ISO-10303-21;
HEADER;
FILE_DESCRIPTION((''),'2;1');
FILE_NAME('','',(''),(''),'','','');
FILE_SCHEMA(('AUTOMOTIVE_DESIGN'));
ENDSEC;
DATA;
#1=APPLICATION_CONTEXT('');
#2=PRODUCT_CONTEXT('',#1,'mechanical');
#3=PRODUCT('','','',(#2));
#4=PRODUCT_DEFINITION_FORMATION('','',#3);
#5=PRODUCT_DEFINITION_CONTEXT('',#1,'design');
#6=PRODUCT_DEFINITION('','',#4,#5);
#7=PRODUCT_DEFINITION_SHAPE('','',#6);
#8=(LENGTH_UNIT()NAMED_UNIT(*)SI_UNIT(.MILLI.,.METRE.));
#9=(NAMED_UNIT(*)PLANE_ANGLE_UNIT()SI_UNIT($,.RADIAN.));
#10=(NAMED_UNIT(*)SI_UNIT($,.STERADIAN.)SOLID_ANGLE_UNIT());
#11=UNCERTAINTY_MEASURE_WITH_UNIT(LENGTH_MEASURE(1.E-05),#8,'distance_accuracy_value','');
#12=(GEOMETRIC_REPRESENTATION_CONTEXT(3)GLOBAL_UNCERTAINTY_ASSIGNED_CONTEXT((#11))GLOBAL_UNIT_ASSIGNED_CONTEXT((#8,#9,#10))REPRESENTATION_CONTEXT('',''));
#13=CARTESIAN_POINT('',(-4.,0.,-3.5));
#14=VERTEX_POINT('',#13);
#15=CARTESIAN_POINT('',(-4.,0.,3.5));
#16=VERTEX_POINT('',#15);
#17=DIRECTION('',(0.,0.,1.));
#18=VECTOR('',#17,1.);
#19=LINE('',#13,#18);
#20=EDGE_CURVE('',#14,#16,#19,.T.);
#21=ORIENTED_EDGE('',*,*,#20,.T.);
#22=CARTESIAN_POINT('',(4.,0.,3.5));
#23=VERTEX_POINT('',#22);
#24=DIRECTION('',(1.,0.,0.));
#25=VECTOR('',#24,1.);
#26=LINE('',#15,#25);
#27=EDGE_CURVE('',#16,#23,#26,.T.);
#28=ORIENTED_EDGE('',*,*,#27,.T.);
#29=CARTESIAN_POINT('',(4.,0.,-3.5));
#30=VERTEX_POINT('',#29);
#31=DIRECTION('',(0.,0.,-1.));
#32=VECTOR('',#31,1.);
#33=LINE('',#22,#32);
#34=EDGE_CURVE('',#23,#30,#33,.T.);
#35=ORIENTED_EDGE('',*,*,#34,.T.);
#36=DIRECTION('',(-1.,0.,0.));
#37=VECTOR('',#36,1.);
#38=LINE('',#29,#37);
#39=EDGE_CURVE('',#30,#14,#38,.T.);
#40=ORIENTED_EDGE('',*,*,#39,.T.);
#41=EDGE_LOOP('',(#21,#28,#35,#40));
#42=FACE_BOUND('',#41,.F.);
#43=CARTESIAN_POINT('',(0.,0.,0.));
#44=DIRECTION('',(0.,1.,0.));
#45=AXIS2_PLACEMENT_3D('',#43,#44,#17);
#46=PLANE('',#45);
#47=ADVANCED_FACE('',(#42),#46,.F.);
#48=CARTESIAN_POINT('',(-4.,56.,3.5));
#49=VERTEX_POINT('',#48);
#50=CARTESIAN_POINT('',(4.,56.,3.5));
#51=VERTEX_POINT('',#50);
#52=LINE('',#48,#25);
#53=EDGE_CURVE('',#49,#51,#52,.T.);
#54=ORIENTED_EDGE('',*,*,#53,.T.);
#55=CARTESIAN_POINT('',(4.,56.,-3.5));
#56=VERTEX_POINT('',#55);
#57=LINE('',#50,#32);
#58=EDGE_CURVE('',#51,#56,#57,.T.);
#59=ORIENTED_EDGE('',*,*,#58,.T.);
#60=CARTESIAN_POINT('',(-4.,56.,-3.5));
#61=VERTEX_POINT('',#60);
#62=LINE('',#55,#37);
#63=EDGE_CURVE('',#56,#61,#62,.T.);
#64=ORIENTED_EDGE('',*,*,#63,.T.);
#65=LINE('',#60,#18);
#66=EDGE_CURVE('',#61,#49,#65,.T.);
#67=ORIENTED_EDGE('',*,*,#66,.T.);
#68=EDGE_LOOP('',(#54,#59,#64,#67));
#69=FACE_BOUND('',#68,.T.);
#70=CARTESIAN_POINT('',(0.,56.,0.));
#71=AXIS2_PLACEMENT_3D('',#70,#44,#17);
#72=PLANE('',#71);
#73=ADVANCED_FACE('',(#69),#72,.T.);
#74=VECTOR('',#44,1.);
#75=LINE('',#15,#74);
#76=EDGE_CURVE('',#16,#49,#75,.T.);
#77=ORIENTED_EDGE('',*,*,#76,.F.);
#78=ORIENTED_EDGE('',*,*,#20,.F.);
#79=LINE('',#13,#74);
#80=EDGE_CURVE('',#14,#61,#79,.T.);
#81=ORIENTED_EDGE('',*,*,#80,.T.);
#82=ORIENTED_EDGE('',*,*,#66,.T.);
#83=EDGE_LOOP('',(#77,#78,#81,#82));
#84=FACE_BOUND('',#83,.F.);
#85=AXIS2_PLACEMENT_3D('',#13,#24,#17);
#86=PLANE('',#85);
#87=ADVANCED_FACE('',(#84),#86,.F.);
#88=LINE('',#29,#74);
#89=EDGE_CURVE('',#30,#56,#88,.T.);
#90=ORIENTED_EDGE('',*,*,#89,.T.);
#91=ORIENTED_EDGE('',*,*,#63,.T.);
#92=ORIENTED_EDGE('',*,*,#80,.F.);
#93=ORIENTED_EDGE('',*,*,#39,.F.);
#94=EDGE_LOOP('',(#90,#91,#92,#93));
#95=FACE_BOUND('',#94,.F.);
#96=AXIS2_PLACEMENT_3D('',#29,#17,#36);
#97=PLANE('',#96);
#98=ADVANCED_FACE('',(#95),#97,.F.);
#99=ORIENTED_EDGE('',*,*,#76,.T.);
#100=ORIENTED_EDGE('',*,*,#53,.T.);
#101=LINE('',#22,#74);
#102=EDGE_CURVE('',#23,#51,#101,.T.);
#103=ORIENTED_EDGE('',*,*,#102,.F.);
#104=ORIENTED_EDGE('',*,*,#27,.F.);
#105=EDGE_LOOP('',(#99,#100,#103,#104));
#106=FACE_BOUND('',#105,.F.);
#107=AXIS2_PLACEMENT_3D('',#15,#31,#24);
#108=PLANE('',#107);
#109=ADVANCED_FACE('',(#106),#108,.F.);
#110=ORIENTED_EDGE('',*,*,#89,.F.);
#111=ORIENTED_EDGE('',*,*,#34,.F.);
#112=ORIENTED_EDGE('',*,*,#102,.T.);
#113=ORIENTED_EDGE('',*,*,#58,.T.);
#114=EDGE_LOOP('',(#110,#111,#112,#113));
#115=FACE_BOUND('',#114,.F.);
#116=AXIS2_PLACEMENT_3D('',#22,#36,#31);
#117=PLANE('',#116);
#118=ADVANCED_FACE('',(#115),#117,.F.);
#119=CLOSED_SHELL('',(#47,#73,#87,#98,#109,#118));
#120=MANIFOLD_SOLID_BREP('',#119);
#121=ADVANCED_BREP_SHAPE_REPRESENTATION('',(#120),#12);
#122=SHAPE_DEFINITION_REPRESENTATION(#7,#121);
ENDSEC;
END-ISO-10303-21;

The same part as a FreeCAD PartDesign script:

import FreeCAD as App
import Part
import Sketcher

V = App.Vector
Q = App.Units.Quantity

doc = App.newDocument("Part")
body = doc.addObject("PartDesign::Body", "Body")

sketch1 = doc.addObject("Sketcher::SketchObject", "Sketch")
body.addObject(sketch1)
sketch1.AttachmentSupport = (doc.XZ_Plane, [""])
sketch1.MapMode = "FlatFace"
sketch1.addGeometry(Part.LineSegment(V(4, 3.5, 0), V(-4, 3.5, 0)), False)
sketch1.addGeometry(Part.LineSegment(V(-4, 3.5, 0), V(-4, -3.5, 0)), False)
sketch1.addGeometry(Part.LineSegment(V(-4, -3.5, 0), V(4, -3.5, 0)), False)
sketch1.addGeometry(Part.LineSegment(V(4, -3.5, 0), V(4, 3.5, 0)), False)
sketch1.addConstraint(Sketcher.Constraint("Coincident", 0, 2, 1, 1))
sketch1.addConstraint(Sketcher.Constraint("Coincident", 1, 2, 2, 1))
sketch1.addConstraint(Sketcher.Constraint("Coincident", 2, 2, 3, 1))
sketch1.addConstraint(Sketcher.Constraint("Coincident", 3, 2, 0, 1))
sketch1.addConstraint(Sketcher.Constraint("Horizontal", 0))
sketch1.addConstraint(Sketcher.Constraint("Vertical", 1))
sketch1.addConstraint(Sketcher.Constraint("Horizontal", 2))
sketch1.addConstraint(Sketcher.Constraint("Vertical", 3))
sketch1.addConstraint(Sketcher.Constraint("Symmetric", 0, 2, 2, 2, -1, 1))
sketch1.addConstraint(Sketcher.Constraint("DistanceX", 0, 2, -1, 1, Q("4 mm")))
sketch1.addConstraint(Sketcher.Constraint("DistanceY", 1, 2, 1, 1, Q("7 mm")))
pad1 = doc.addObject("PartDesign::Pad", "Pad")
body.addObject(pad1)
pad1.Profile = sketch1
pad1.Length = 56
pad1.Reversed = True

doc.recompute()
